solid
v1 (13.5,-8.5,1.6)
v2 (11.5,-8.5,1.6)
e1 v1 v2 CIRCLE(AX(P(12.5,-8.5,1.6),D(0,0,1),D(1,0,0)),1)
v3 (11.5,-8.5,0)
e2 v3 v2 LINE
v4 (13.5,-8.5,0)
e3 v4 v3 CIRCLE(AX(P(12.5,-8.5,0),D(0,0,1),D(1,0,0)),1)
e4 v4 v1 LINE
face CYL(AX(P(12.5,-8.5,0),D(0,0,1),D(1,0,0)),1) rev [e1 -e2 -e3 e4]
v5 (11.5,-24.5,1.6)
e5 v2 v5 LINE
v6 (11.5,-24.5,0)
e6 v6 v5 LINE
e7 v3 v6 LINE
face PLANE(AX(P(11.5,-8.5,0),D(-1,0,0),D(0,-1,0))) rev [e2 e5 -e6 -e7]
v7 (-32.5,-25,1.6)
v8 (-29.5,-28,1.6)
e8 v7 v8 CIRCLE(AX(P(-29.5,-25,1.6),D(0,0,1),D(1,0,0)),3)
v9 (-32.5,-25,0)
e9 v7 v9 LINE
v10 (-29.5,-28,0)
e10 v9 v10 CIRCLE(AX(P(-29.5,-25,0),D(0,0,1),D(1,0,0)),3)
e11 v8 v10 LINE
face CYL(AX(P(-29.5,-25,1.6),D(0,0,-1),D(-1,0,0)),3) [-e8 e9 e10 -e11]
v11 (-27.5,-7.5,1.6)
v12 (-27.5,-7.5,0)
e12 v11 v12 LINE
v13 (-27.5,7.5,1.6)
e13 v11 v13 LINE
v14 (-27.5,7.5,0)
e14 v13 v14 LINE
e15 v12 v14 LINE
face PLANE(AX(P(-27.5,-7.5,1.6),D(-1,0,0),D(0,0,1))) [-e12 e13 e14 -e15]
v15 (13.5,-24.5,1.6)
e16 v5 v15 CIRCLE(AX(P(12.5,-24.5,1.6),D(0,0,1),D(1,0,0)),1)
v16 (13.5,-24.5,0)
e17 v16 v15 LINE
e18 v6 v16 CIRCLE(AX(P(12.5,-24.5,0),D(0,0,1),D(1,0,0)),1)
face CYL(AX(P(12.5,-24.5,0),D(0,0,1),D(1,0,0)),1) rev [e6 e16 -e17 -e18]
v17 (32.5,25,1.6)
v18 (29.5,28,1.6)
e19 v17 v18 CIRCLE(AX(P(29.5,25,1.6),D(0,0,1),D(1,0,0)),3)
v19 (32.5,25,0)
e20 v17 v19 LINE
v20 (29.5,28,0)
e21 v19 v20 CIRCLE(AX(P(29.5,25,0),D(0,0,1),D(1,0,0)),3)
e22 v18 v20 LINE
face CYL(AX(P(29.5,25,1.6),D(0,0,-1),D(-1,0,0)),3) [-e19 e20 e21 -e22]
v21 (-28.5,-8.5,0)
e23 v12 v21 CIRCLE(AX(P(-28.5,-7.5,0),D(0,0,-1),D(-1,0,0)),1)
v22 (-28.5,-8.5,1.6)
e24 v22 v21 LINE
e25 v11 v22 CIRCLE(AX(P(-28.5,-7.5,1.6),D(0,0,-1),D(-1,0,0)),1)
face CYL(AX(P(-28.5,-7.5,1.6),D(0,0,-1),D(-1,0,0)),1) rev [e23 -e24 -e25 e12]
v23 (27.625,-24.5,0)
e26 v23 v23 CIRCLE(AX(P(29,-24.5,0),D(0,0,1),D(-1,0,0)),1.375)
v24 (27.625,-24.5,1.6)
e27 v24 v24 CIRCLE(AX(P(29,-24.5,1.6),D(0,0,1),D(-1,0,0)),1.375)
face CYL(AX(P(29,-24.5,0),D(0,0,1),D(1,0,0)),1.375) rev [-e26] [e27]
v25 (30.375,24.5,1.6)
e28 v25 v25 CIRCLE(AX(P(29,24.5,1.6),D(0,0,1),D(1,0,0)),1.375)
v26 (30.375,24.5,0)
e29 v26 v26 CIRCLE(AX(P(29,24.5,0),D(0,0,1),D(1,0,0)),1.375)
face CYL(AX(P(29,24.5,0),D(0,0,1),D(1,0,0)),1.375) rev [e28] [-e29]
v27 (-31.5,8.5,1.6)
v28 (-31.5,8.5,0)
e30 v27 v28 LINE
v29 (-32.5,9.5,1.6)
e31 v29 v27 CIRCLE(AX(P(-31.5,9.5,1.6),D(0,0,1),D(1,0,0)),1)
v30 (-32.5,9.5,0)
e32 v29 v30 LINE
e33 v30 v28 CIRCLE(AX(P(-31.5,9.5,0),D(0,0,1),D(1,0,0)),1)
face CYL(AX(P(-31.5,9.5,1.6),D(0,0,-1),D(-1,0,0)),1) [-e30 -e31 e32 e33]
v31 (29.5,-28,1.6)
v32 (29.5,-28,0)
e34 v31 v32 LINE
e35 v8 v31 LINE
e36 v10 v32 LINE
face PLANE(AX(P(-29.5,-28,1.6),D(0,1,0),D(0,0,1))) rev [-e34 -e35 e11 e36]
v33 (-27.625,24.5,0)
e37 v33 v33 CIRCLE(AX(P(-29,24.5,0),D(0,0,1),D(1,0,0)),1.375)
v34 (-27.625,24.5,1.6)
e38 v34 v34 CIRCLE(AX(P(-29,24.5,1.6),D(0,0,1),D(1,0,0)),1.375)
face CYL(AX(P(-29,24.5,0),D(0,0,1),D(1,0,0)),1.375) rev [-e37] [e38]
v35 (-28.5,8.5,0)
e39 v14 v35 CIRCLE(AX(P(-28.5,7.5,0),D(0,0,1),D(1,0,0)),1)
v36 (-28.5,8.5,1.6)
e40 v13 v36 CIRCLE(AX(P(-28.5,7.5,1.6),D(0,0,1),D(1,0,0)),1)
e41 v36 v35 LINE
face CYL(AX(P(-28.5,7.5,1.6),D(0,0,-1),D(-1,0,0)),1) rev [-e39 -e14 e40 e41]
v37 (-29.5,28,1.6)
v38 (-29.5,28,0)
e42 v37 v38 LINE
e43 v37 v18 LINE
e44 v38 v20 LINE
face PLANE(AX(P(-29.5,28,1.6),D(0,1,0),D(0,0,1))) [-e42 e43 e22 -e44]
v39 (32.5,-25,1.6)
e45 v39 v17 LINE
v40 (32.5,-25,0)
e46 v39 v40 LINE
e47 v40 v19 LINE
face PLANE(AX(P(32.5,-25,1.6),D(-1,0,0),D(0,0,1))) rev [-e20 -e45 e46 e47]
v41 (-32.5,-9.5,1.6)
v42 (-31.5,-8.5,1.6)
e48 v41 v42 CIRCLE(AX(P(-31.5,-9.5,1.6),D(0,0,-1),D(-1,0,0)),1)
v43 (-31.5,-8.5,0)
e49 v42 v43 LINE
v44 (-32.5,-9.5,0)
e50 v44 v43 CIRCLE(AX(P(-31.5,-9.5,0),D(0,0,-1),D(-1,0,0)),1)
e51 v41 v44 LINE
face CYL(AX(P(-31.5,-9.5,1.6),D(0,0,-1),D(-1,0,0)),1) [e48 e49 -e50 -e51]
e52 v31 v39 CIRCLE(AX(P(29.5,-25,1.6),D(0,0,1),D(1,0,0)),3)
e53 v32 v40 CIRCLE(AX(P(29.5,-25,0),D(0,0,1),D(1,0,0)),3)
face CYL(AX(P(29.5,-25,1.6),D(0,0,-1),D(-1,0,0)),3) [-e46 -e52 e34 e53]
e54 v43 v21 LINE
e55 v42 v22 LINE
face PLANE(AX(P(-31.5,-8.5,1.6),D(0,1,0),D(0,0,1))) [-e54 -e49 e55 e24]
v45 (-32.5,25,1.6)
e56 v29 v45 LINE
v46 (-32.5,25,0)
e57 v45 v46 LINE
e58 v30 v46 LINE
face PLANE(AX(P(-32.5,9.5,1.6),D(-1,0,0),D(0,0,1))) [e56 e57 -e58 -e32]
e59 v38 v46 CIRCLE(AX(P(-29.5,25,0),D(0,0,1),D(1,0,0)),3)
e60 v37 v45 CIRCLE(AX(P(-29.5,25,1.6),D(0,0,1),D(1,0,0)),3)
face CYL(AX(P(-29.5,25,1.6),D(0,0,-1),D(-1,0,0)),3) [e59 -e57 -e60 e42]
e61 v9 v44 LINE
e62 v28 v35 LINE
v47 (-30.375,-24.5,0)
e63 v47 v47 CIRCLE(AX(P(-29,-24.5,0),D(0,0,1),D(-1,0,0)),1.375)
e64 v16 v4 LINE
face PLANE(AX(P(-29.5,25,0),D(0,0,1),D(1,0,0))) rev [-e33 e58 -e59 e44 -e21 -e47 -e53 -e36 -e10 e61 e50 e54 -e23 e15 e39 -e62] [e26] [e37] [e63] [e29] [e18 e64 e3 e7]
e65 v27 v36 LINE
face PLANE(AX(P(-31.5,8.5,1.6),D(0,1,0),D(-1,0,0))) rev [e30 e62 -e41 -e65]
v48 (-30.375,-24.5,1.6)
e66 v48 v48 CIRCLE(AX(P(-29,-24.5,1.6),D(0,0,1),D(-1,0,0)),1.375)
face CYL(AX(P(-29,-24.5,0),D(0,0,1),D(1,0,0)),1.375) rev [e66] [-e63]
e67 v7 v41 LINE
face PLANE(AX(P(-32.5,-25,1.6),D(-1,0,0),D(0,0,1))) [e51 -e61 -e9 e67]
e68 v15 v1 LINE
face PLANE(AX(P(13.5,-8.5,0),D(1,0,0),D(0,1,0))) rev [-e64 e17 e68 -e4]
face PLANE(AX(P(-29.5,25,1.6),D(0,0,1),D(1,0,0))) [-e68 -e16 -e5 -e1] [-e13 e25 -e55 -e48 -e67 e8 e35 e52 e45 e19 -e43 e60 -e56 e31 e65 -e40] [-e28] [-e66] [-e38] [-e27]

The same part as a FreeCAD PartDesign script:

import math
import FreeCAD as App
import Part
import Sketcher
from FreeCAD import Vector
Q = App.Units.Quantity

doc = App.newDocument("Part")
params = doc.addObject("Spreadsheet::Sheet", "Params")
for row, (alias, value) in enumerate([
    ("sketch1_radius", "3 mm"),
    ("sketch1_radius2", "1 mm"),
    ("sketch1_width", "59 mm"),
    ("sketch1_width2", "3 mm"),
    ("sketch1_height", "50 mm"),
    ("pad1_length", "1.6 mm"),
    ("sketch2_radius", "1 mm"),
    ("sketch2_height", "16 mm"),
    ("sketch3_diameter", "2.75 mm"),
], start=1):
    params.set(f"A{row}", alias)
    params.set(f"B{row}", "=" + value)
    params.setAlias(f"B{row}", alias)

body = doc.addObject("PartDesign::Body", "Body")

# Sketch on XY plane
sketch1 = doc.addObject("Sketcher::SketchObject", "Sketch")
body.addObject(sketch1)
sketch1.AttachmentSupport = (doc.XY_Plane, [""])
sketch1.MapMode = "FlatFace"
sketch1.addGeometry([
    Part.LineSegment(Vector(-29.5, -28, 0), Vector(29.5, -28, 0)),  # 0
    Part.ArcOfCircle(Part.Circle(Vector(29.5, -25, 0), Vector(0, 0, 1), 3), math.radians(-90), math.radians(0)),  # 1
    Part.LineSegment(Vector(32.5, -25, 0), Vector(32.5, 25, 0)),  # 2
    Part.ArcOfCircle(Part.Circle(Vector(29.5, 25, 0), Vector(0, 0, 1), 3), math.radians(0), math.radians(90)),  # 3
    Part.LineSegment(Vector(29.5, 28, 0), Vector(-29.5, 28, 0)),  # 4
    Part.ArcOfCircle(Part.Circle(Vector(-29.5, 25, 0), Vector(0, 0, 1), 3), math.radians(90), math.radians(180)),  # 5
    Part.LineSegment(Vector(-32.5, 25, 0), Vector(-32.5, 9.5, 0)),  # 6
    Part.ArcOfCircle(Part.Circle(Vector(-31.5, 9.5, 0), Vector(0, 0, 1), 1), math.radians(-180), math.radians(-90)),  # 7
    Part.LineSegment(Vector(-31.5, 8.5, 0), Vector(-28.5, 8.5, 0)),  # 8
    Part.ArcOfCircle(Part.Circle(Vector(-28.5, 7.5, 0), Vector(0, 0, 1), 1), math.radians(0), math.radians(90)),  # 9
    Part.LineSegment(Vector(-27.5, 7.5, 0), Vector(-27.5, -7.5, 0)),  # 10
    Part.ArcOfCircle(Part.Circle(Vector(-28.5, -7.5, 0), Vector(0, 0, 1), 1), math.radians(-90), math.radians(0)),  # 11
    Part.LineSegment(Vector(-28.5, -8.5, 0), Vector(-31.5, -8.5, 0)),  # 12
    Part.ArcOfCircle(Part.Circle(Vector(-31.5, -9.5, 0), Vector(0, 0, 1), 1), math.radians(90), math.radians(180)),  # 13
    Part.LineSegment(Vector(-32.5, -9.5, 0), Vector(-32.5, -25, 0)),  # 14
    Part.ArcOfCircle(Part.Circle(Vector(-29.5, -25, 0), Vector(0, 0, 1), 3), math.radians(180), math.radians(270)),  # 15
], False)
sketch1.addConstraint([
    Sketcher.Constraint("Tangent", 0, 2, 1, 1),
    Sketcher.Constraint("Tangent", 1, 2, 2, 1),
    Sketcher.Constraint("Tangent", 2, 2, 3, 1),
    Sketcher.Constraint("Tangent", 3, 2, 4, 1),
    Sketcher.Constraint("Tangent", 4, 2, 5, 1),
    Sketcher.Constraint("Tangent", 5, 2, 6, 1),
    Sketcher.Constraint("Tangent", 6, 2, 7, 1),
    Sketcher.Constraint("Tangent", 7, 2, 8, 1),
    Sketcher.Constraint("Tangent", 8, 2, 9, 2),
    Sketcher.Constraint("Tangent", 9, 1, 10, 1),
    Sketcher.Constraint("Tangent", 10, 2, 11, 2),
    Sketcher.Constraint("Tangent", 11, 1, 12, 1),
    Sketcher.Constraint("Tangent", 12, 2, 13, 1),
    Sketcher.Constraint("Tangent", 13, 2, 14, 1),
    Sketcher.Constraint("Tangent", 14, 2, 15, 1),
    Sketcher.Constraint("Tangent", 15, 2, 0, 1),
    Sketcher.Constraint("Horizontal", 0),
    Sketcher.Constraint("Vertical", 2),
    Sketcher.Constraint("Horizontal", 4),
    Sketcher.Constraint("Vertical", 6),
    Sketcher.Constraint("Horizontal", 8),
    Sketcher.Constraint("Vertical", 10),
    Sketcher.Constraint("Horizontal", 12),
    Sketcher.Constraint("Vertical", 14),
    Sketcher.Constraint("Equal", 1, 3),
    Sketcher.Constraint("Equal", 3, 5),
    Sketcher.Constraint("Equal", 7, 9),
    Sketcher.Constraint("Equal", 9, 11),
    Sketcher.Constraint("Equal", 11, 13),
    Sketcher.Constraint("Equal", 5, 15),
    Sketcher.Constraint("Symmetric", 1, 3, 5, 3, -1, 1),
    Sketcher.Constraint("Symmetric", 7, 3, 13, 3, -1),
    Sketcher.Constraint("Radius", 1, Q("3 mm")),
    Sketcher.Constraint("Radius", 7, Q("1 mm")),
    Sketcher.Constraint("DistanceX", 0, 1, 0, 2, Q("59 mm")),
    Sketcher.Constraint("DistanceX", 8, 1, 8, 2, Q("3 mm")),
    Sketcher.Constraint("DistanceY", 2, 1, 2, 2, Q("50 mm")),
    Sketcher.Constraint("DistanceY", 10, 2, 10, 1, Q("15 mm")),
])
sketch1.setExpression("Constraints[32]", "Params.sketch1_radius")
sketch1.setExpression("Constraints[33]", "Params.sketch1_radius2")
sketch1.setExpression("Constraints[34]", "Params.sketch1_width")
sketch1.setExpression("Constraints[35]", "Params.sketch1_width2")
sketch1.setExpression("Constraints[36]", "Params.sketch1_height")
pad1 = doc.addObject("PartDesign::Pad", "Pad")
body.addObject(pad1)
pad1.Profile = sketch1
pad1.setExpression("Length", "Params.pad1_length")

# Sketch on XY plane
sketch2 = doc.addObject("Sketcher::SketchObject", "Sketch001")
body.addObject(sketch2)
sketch2.AttachmentSupport = (doc.XY_Plane, [""])
sketch2.MapMode = "FlatFace"
sketch2.AttachmentOffset = App.Placement(Vector(0, 0, 1.6), App.Rotation())
sketch2.addGeometry([
    Part.LineSegment(Vector(13.5, -24.5, 0), Vector(13.5, -8.5, 0)),
    Part.ArcOfCircle(Part.Circle(Vector(12.5, -8.5, 0), Vector(0, 0, 1), 1), math.radians(0), math.radians(180)),
    Part.LineSegment(Vector(11.5, -8.5, 0), Vector(11.5, -24.5, 0)),
    Part.ArcOfCircle(Part.Circle(Vector(12.5, -24.5, 0), Vector(0, 0, 1), 1), math.radians(180), math.radians(360)),
], False)
sketch2.addConstraint([
    Sketcher.Constraint("Tangent", 0, 2, 1, 1),
    Sketcher.Constraint("Tangent", 1, 2, 2, 1),
    Sketcher.Constraint("Tangent", 2, 2, 3, 1),
    Sketcher.Constraint("Tangent", 3, 2, 0, 1),
    Sketcher.Constraint("Vertical", 0),
    Sketcher.Constraint("Vertical", 2),
    Sketcher.Constraint("Radius", 1, Q("1 mm")),
    Sketcher.Constraint("DistanceY", 0, 1, 0, 2, Q("16 mm")),
    Sketcher.Constraint("DistanceX", -1, 1, 1, 3, Q("12.5 mm")),
    Sketcher.Constraint("DistanceY", 1, 3, -1, 1, Q("8.5 mm")),
])
sketch2.setExpression("Constraints[6]", "Params.sketch2_radius")
sketch2.setExpression("Constraints[7]", "Params.sketch2_height")
pocket1 = doc.addObject("PartDesign::Pocket", "Pocket")
body.addObject(pocket1)
pocket1.Profile = sketch2
pocket1.Type = "ThroughAll"

# Sketch on XY plane
sketch3 = doc.addObject("Sketcher::SketchObject", "Sketch002")
body.addObject(sketch3)
sketch3.AttachmentSupport = (doc.XY_Plane, [""])
sketch3.MapMode = "FlatFace"
sketch3.AttachmentOffset = App.Placement(Vector(0, 0, 1.6), App.Rotation())
sketch3.addGeometry([
    Part.Circle(Vector(-29, 24.5, 0), Vector(0, 0, 1), 1.375),
    Part.Circle(Vector(29, 24.5, 0), Vector(0, 0, 1), 1.375),
    Part.Circle(Vector(29, -24.5, 0), Vector(0, 0, 1), 1.375),
    Part.Circle(Vector(-29, -24.5, 0), Vector(0, 0, 1), 1.375),
], False)
sketch3.addConstraint([
    Sketcher.Constraint("Equal", 0, 1),
    Sketcher.Constraint("Equal", 1, 2),
    Sketcher.Constraint("Equal", 2, 3),
    Sketcher.Constraint("Symmetric", 0, 3, 2, 3, -1, 1),
    Sketcher.Constraint("Symmetric", 1, 3, 3, 3, -1, 1),
    Sketcher.Constraint("Symmetric", 0, 3, 1, 3, -2),
    Sketcher.Constraint("Diameter", 0, Q("2.75 mm")),
    Sketcher.Constraint("DistanceX", 0, 3, -1, 1, Q("29 mm")),
    Sketcher.Constraint("DistanceY", 2, 3, 1, 3, Q("49 mm")),
])
sketch3.setExpression("Constraints[6]", "Params.sketch3_diameter")
pocket2 = doc.addObject("PartDesign::Pocket", "Pocket001")
body.addObject(pocket2)
pocket2.Profile = sketch3
pocket2.Type = "ThroughAll"

doc.recompute()
